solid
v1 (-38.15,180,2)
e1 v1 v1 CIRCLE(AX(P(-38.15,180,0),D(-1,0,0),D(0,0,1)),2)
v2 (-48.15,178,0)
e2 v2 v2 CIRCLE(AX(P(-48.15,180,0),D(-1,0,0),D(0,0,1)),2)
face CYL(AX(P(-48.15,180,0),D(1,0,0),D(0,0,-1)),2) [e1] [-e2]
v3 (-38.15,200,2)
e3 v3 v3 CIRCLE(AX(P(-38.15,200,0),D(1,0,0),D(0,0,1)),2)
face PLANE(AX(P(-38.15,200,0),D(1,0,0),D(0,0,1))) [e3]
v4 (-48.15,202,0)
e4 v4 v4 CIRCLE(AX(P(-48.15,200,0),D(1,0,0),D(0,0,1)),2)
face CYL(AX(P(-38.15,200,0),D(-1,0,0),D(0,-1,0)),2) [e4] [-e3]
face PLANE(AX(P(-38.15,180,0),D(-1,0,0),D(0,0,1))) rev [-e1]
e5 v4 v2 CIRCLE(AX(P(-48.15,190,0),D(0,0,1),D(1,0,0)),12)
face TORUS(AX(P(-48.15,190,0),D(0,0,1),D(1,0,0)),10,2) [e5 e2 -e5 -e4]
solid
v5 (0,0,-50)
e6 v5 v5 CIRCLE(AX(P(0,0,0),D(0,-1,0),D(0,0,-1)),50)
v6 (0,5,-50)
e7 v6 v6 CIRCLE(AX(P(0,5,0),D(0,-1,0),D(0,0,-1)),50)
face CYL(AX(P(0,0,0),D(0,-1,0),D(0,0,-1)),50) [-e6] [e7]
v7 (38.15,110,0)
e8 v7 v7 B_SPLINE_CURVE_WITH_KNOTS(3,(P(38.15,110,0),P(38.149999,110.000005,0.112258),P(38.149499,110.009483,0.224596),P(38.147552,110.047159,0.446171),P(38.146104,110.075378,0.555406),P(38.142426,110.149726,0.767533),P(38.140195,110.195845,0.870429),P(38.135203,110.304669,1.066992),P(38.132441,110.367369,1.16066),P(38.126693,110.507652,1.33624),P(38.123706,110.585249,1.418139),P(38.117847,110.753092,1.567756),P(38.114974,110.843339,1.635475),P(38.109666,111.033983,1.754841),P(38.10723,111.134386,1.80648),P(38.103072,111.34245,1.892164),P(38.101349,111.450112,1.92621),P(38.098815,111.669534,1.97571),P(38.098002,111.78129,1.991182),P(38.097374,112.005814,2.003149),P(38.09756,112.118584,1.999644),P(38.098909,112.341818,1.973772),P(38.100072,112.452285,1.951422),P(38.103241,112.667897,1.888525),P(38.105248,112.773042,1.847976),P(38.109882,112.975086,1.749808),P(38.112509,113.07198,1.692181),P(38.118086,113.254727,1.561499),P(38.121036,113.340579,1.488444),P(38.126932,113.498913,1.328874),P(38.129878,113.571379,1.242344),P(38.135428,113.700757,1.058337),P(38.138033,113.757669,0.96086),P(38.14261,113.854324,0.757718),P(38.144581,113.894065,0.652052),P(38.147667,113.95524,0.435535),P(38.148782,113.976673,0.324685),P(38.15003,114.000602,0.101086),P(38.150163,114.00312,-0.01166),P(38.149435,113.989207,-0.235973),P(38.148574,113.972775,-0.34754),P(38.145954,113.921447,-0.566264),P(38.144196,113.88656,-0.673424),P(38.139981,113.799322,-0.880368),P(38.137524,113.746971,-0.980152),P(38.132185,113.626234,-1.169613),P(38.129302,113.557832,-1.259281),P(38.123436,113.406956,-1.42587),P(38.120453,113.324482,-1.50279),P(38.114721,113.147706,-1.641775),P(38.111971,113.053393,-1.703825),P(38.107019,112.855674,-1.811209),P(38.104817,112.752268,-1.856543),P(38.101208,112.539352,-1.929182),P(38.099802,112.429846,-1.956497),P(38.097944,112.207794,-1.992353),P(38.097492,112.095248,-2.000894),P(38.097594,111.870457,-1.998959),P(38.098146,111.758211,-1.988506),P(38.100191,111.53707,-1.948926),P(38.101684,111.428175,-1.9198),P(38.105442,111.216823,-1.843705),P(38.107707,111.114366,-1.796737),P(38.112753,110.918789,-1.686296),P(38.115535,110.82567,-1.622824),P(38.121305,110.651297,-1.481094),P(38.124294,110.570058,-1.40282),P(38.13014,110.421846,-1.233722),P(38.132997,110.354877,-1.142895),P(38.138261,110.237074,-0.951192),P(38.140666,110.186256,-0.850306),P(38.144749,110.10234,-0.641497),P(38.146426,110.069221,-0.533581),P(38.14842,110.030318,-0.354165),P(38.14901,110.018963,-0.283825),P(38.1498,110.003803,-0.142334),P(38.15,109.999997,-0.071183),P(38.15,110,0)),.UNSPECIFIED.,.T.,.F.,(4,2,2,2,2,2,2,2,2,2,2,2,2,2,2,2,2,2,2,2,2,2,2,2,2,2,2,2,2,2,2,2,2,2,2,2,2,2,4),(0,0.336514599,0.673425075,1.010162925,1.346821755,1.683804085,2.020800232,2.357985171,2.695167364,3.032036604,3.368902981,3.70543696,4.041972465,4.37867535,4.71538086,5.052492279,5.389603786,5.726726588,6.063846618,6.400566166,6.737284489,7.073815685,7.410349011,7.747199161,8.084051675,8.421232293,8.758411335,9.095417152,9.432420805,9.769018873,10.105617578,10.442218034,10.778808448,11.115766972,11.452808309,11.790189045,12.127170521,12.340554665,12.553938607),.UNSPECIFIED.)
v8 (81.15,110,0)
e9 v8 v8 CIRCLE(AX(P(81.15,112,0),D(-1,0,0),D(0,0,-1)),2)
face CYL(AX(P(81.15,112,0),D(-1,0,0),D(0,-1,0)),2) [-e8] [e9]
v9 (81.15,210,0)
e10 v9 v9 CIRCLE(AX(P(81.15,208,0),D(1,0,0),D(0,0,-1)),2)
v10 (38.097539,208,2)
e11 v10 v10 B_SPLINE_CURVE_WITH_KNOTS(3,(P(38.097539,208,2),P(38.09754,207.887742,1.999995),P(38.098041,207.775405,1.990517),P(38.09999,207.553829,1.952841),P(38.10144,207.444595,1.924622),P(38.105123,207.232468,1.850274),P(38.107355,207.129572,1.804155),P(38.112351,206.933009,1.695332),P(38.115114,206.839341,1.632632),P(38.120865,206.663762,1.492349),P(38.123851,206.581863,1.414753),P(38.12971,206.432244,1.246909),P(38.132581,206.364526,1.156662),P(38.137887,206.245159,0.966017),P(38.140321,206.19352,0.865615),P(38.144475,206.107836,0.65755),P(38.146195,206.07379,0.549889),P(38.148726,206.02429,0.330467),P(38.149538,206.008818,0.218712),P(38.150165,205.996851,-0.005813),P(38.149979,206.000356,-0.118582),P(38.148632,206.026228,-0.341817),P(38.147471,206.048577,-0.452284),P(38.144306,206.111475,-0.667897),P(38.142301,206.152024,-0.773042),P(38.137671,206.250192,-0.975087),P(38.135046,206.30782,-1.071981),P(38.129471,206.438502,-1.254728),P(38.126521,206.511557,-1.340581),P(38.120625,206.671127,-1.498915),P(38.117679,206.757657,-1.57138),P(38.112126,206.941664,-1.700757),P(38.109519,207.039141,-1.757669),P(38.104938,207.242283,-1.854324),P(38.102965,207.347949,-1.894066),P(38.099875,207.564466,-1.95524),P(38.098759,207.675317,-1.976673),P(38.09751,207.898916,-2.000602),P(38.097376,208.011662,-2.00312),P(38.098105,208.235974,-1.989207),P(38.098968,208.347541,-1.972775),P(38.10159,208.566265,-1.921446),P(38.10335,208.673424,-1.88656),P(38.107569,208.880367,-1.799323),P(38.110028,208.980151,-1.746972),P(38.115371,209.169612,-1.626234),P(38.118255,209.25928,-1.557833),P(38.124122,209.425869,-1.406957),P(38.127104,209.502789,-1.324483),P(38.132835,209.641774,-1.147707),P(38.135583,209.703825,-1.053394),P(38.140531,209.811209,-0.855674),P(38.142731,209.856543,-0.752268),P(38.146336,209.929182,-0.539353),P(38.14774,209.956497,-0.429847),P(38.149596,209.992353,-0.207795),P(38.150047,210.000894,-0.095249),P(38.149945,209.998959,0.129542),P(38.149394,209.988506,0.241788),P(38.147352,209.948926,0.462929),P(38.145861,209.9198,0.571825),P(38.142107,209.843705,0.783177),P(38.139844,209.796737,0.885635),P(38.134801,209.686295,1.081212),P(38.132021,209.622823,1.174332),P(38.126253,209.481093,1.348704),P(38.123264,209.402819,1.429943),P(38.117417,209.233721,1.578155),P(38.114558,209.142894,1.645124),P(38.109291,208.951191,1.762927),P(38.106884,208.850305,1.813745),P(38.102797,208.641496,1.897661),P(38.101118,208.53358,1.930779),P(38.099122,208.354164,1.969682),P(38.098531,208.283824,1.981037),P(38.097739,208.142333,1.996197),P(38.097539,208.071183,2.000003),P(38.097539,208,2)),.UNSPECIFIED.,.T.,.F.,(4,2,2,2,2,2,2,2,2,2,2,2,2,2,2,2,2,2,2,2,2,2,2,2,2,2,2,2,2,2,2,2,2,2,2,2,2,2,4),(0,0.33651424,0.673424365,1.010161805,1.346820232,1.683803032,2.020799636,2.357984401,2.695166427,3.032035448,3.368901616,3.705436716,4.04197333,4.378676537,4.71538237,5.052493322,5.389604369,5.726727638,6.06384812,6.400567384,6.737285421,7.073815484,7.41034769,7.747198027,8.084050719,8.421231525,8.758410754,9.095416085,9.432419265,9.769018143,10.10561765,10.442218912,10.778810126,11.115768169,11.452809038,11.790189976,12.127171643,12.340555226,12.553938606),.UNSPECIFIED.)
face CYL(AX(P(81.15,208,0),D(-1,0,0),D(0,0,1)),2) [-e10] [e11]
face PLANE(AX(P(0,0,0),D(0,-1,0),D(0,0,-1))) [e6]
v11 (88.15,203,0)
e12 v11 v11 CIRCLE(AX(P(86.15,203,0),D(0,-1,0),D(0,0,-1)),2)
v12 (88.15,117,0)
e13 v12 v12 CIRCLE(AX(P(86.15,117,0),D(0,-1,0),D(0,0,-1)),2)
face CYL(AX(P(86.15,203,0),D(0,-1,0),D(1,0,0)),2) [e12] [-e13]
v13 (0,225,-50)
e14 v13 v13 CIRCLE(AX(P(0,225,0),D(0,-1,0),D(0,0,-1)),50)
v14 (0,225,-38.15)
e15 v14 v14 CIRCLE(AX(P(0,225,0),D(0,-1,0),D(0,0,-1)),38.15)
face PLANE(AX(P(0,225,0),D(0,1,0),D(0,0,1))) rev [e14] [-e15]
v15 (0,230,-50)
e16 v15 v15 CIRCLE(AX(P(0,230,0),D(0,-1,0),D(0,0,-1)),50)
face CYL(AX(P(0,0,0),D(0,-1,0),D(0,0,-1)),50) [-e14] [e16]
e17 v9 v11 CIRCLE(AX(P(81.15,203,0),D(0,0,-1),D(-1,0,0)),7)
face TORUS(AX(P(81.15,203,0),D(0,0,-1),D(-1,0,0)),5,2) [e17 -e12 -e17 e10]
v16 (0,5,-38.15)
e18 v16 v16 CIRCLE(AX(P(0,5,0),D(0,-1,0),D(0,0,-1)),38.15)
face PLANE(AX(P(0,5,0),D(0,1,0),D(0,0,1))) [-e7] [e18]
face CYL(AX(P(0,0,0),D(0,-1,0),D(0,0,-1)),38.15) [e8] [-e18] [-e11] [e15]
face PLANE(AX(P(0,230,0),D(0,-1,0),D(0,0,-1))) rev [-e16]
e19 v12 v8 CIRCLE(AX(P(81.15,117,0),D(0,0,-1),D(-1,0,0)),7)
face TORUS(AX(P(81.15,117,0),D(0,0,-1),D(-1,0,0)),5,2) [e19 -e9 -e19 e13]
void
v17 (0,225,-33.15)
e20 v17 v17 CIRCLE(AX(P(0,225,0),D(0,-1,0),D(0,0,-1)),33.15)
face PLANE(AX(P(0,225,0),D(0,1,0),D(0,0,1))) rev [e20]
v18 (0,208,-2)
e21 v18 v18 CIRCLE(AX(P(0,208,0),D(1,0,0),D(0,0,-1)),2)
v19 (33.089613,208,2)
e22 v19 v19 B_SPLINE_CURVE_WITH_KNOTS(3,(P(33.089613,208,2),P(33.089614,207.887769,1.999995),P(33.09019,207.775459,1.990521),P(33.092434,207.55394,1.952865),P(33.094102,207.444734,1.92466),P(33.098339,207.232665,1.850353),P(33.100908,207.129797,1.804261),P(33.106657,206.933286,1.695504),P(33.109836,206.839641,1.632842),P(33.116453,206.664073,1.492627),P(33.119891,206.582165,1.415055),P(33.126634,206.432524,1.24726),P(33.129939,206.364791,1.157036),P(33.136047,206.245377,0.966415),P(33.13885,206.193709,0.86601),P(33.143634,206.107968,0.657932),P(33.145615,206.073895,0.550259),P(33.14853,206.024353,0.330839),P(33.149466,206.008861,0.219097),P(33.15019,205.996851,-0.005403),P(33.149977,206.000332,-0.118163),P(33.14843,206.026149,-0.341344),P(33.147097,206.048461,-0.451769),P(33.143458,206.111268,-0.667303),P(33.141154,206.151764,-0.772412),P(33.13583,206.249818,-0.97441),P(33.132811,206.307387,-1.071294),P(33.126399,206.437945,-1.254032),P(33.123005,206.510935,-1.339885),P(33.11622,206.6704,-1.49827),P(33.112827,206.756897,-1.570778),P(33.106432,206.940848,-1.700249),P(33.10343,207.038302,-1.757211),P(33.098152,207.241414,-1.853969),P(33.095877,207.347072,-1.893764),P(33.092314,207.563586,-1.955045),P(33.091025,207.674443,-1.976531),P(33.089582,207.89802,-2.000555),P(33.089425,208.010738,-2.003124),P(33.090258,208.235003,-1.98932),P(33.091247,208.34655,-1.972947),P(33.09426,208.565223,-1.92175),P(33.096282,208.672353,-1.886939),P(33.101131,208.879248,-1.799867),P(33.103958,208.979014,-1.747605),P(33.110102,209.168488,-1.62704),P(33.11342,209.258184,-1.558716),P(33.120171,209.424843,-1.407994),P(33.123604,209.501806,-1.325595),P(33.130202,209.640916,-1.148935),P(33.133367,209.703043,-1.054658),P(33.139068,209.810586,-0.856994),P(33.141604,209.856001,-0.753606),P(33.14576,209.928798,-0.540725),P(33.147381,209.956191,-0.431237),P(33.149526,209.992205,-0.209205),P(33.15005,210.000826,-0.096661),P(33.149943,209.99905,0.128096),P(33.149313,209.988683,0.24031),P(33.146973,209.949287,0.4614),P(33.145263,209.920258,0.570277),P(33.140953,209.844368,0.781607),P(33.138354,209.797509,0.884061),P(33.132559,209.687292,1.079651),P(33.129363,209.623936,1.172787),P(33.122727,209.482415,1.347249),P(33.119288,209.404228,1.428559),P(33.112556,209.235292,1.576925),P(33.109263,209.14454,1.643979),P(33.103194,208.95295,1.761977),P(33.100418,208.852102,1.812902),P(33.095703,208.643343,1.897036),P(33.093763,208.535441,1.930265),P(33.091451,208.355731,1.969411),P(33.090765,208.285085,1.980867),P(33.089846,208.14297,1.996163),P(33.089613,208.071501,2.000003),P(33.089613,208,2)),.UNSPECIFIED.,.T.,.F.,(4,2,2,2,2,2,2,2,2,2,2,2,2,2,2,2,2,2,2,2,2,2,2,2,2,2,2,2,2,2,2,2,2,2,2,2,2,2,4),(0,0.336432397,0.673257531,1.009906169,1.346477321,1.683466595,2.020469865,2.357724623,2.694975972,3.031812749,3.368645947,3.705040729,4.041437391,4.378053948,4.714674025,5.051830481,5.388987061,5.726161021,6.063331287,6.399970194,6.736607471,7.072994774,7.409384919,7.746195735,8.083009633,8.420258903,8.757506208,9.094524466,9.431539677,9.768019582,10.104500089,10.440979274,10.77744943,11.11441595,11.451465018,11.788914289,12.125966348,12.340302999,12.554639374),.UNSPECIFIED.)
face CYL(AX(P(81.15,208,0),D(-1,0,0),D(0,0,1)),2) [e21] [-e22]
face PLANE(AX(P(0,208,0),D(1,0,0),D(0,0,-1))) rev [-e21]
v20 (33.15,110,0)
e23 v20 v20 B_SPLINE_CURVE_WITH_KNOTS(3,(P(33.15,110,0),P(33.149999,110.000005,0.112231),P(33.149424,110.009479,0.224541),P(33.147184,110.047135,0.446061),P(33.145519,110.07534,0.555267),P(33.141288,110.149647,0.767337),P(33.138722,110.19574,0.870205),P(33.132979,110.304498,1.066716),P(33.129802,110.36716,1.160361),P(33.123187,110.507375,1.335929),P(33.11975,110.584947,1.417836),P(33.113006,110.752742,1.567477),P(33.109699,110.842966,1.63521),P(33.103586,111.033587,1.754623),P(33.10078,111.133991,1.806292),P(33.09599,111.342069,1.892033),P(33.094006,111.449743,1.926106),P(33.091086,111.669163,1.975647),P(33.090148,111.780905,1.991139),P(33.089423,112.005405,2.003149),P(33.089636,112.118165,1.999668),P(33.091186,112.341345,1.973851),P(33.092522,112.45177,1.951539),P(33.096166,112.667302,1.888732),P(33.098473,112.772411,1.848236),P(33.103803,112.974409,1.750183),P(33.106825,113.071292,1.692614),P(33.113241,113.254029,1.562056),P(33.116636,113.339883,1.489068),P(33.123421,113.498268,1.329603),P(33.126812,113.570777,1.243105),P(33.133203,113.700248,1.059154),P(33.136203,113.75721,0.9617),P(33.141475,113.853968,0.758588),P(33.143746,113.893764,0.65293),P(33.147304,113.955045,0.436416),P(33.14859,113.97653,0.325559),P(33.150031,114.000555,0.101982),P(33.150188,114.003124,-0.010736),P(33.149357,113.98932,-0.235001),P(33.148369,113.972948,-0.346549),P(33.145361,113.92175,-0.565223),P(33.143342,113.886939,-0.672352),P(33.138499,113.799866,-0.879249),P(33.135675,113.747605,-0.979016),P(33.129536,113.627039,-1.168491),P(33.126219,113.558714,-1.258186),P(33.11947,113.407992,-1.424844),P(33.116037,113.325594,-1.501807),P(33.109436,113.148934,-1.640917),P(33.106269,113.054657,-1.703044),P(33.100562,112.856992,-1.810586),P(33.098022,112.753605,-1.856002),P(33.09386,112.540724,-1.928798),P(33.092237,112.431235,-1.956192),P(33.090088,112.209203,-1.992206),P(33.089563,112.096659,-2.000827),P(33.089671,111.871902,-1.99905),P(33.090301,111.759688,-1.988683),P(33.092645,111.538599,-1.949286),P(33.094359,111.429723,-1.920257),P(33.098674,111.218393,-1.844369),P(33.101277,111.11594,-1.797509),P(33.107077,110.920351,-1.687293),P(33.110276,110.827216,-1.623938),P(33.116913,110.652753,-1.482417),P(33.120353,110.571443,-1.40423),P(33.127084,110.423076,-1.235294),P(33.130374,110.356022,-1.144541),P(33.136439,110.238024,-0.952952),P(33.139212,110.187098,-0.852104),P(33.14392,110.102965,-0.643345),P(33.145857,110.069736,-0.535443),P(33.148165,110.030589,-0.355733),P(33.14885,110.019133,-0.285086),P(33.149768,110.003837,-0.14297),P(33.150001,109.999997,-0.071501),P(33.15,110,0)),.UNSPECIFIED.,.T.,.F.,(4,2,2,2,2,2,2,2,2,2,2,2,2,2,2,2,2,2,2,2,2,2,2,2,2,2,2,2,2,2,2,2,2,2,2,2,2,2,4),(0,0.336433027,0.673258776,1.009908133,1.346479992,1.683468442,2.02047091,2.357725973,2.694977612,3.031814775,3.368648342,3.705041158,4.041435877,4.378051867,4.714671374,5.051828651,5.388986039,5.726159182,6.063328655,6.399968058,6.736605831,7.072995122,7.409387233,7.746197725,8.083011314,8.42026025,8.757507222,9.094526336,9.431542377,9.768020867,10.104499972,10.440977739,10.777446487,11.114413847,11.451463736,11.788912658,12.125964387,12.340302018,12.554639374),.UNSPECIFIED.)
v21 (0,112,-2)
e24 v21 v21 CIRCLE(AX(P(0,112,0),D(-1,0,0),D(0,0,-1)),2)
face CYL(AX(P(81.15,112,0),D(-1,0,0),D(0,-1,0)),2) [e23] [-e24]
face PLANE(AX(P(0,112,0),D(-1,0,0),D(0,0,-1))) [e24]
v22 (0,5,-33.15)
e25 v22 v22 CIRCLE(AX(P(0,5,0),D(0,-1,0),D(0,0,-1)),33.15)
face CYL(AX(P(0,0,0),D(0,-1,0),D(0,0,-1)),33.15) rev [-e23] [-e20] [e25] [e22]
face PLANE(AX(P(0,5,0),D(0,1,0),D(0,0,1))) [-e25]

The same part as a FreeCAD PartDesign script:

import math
import FreeCAD as App
import Part
import Sketcher

V = App.Vector


def add_polygon(sketch, points):
    """Adds a closed chain of lines whose ends are joined by coincident constraints."""
    first, n = sketch.GeometryCount, len(points)
    for a, b in zip(points, points[1:] + points[:1]):
        sketch.addGeometry(Part.LineSegment(App.Vector(*a, 0), App.Vector(*b, 0)), False)
    for i in range(n):
        sketch.addConstraint(Sketcher.Constraint("Coincident", first + i, 2, first + (i + 1) % n, 1))

doc = App.newDocument("Part")
params = doc.addObject("Spreadsheet::Sheet", "Params")
for row, (alias, value) in enumerate([
    ("sketch1_width", "50 mm"),
    ("sketch1_height", "5 mm"),
    ("sketch1_height2", "220 mm"),
    ("sketch1_width2", "11.85 mm"),
    ("revolution_angle", "360 deg"),
    ("sketch2_diameter", "4 mm"),
    ("sketch3_radius", "5 mm"),
    ("sketch3_height", "86 mm"),
    ("sketch3_width", "81.15 mm"),
    ("sketch4_diameter", "4 mm"),
    ("sketch5_radius", "10 mm"),
    ("sketch5_width", "10 mm"),
], start=1):
    params.set(f"A{row}", alias)
    params.set(f"B{row}", "=" + value)
    params.setAlias(f"B{row}", alias)

body = doc.addObject("PartDesign::Body", "Body")

sketch1 = body.newObject("Sketcher::SketchObject", "Sketch")
sketch1.AttachmentSupport = (doc.getObject("XY_Plane"), [""])
sketch1.MapMode = "FlatFace"
add_polygon(sketch1, [(0, 5), (0, 0), (50, 0), (50, 5), (38.15, 5), (38.15, 225), (50, 225), (50, 230), (0, 230), (0, 225), (33.15, 225), (33.15, 5)])
sketch1.addConstraint(Sketcher.Constraint("Vertical", 0))
sketch1.addConstraint(Sketcher.Constraint("Horizontal", 1))
sketch1.addConstraint(Sketcher.Constraint("Vertical", 2))
sketch1.addConstraint(Sketcher.Constraint("Horizontal", 3))
sketch1.addConstraint(Sketcher.Constraint("Vertical", 4))
sketch1.addConstraint(Sketcher.Constraint("Horizontal", 5))
sketch1.addConstraint(Sketcher.Constraint("Vertical", 6))
sketch1.addConstraint(Sketcher.Constraint("Horizontal", 7))
sketch1.addConstraint(Sketcher.Constraint("Vertical", 8))
sketch1.addConstraint(Sketcher.Constraint("Horizontal", 9))
sketch1.addConstraint(Sketcher.Constraint("Vertical", 10))
sketch1.addConstraint(Sketcher.Constraint("Horizontal", 11))
sketch1.addConstraint(Sketcher.Constraint("Coincident", 0, 2, -1, 1))
sketch1.addConstraint(Sketcher.Constraint("PointOnObject", 7, 2, -2))
sketch1.addConstraint(Sketcher.Constraint("Horizontal", 5, 2, 8, 2))
sketch1.addConstraint(Sketcher.Constraint("Horizontal", 3, 2, 10, 2))
sketch1.addConstraint(Sketcher.Constraint("Vertical", 2, 2, 5, 2))
sketch1.addConstraint(Sketcher.Constraint("Equal", 2, 6))
sketch1.addConstraint(Sketcher.Constraint("DistanceX", 1, 1, 1, 2, 50.0))
sketch1.addConstraint(Sketcher.Constraint("DistanceY", 0, 2, 0, 1, 5.0))
sketch1.addConstraint(Sketcher.Constraint("DistanceY", 4, 1, 4, 2, 220.0))
sketch1.addConstraint(Sketcher.Constraint("DistanceX", 9, 2, 4, 2, 5.0))
sketch1.addConstraint(Sketcher.Constraint("DistanceX", 3, 2, 3, 1, 11.85))
sketch1.setExpression("Constraints[30]", "Params.sketch1_width")
sketch1.setExpression("Constraints[31]", "Params.sketch1_height")
sketch1.setExpression("Constraints[32]", "Params.sketch1_height2")
sketch1.setExpression("Constraints[34]", "Params.sketch1_width2")
revolution = body.newObject("PartDesign::Revolution", "Revolution")
revolution.Profile = sketch1
revolution.ReferenceAxis = (sketch1, ["V_Axis"])
revolution.setExpression("Angle", "Params.revolution_angle")

sketch2 = body.newObject("Sketcher::SketchObject", "Sketch001")
sketch2.AttachmentSupport = (doc.getObject("YZ_Plane"), [""])
sketch2.MapMode = "FlatFace"
sketch2.addGeometry(Part.Circle(V(208, 0, 0), V(0, 0, 1), 2), False)
sketch2.addConstraint(Sketcher.Constraint("PointOnObject", 0, 3, -1))
sketch2.addConstraint(Sketcher.Constraint("Diameter", 0, 4.0))
sketch2.addConstraint(Sketcher.Constraint("DistanceX", -1, 1, 0, 3, 208.0))
sketch2.setExpression("Constraints[1]", "Params.sketch2_diameter")

sketch3 = body.newObject("Sketcher::SketchObject", "Sketch002")
sketch3.AttachmentSupport = (doc.getObject("XY_Plane"), [""])
sketch3.MapMode = "FlatFace"
sketch3.addGeometry(Part.LineSegment(V(0, 208, 0), V(81.15, 208, 0)), False)
sketch3.addGeometry(Part.ArcOfCircle(Part.Circle(V(81.15, 203, 0), V(0, 0, 1), 5), math.radians(0), math.radians(90)), False)
sketch3.addGeometry(Part.LineSegment(V(86.15, 203, 0), V(86.15, 117, 0)), False)
sketch3.addGeometry(Part.ArcOfCircle(Part.Circle(V(81.15, 117, 0), V(0, 0, 1), 5), math.radians(-90), math.radians(0)), False)
sketch3.addGeometry(Part.LineSegment(V(81.15, 112, 0), V(0, 112, 0)), False)
sketch3.addConstraint(Sketcher.Constraint("Tangent", 0, 2, 1, 2))
sketch3.addConstraint(Sketcher.Constraint("Tangent", 1, 1, 2, 1))
sketch3.addConstraint(Sketcher.Constraint("Tangent", 2, 2, 3, 2))
sketch3.addConstraint(Sketcher.Constraint("Tangent", 3, 1, 4, 1))
sketch3.addConstraint(Sketcher.Constraint("Horizontal", 0))
sketch3.addConstraint(Sketcher.Constraint("Vertical", 2))
sketch3.addConstraint(Sketcher.Constraint("Horizontal", 4))
sketch3.addConstraint(Sketcher.Constraint("Equal", 1, 3))
sketch3.addConstraint(Sketcher.Constraint("PointOnObject", 0, 1, -2))
sketch3.addConstraint(Sketcher.Constraint("PointOnObject", 4, 2, -2))
sketch3.addConstraint(Sketcher.Constraint("Radius", 1, 5.0))
sketch3.addConstraint(Sketcher.Constraint("DistanceY", 2, 2, 2, 1, 86.0))
sketch3.addConstraint(Sketcher.Constraint("DistanceY", -1, 1, 1, 3, 203.0))
sketch3.addConstraint(Sketcher.Constraint("DistanceX", 0, 1, 0, 2, 81.15))
sketch3.setExpression("Constraints[10]", "Params.sketch3_radius")
sketch3.setExpression("Constraints[11]", "Params.sketch3_height")
sketch3.setExpression("Constraints[13]", "Params.sketch3_width")
doc.recompute()

additivepipe = body.newObject("PartDesign::AdditivePipe", "AdditivePipe")
additivepipe.Profile = sketch2
additivepipe.Spine = (sketch3, ["Edge1", "Edge2", "Edge3", "Edge4", "Edge5"])
body2 = doc.addObject("PartDesign::Body", "Body001")

sketch4 = body2.newObject("Sketcher::SketchObject", "Sketch003")
sketch4.AttachmentSupport = (doc.getObject("YZ_Plane001"), [""])
sketch4.MapMode = "FlatFace"
sketch4.AttachmentOffset = App.Placement(V(0, 0, -38.15), App.Rotation())
sketch4.addGeometry(Part.Circle(V(200, 0, 0), V(0, 0, 1), 2), False)
sketch4.addConstraint(Sketcher.Constraint("PointOnObject", 0, 3, -1))
sketch4.addConstraint(Sketcher.Constraint("Diameter", 0, 4.0))
sketch4.addConstraint(Sketcher.Constraint("DistanceX", -1, 1, 0, 3, 200.0))
sketch4.setExpression("Constraints[1]", "Params.sketch4_diameter")

sketch5 = body2.newObject("Sketcher::SketchObject", "Sketch004")
sketch5.AttachmentSupport = (doc.getObject("XY_Plane001"), [""])
sketch5.MapMode = "FlatFace"
sketch5.addGeometry(Part.LineSegment(V(-38.15, 200, 0), V(-48.15, 200, 0)), False)
sketch5.addGeometry(Part.ArcOfCircle(Part.Circle(V(-48.15, 190, 0), V(0, 0, 1), 10), math.radians(90), math.radians(270)), False)
sketch5.addGeometry(Part.LineSegment(V(-48.15, 180, 0), V(-38.15, 180, 0)), False)
sketch5.addConstraint(Sketcher.Constraint("Tangent", 0, 2, 1, 1))
sketch5.addConstraint(Sketcher.Constraint("Tangent", 1, 2, 2, 1))
sketch5.addConstraint(Sketcher.Constraint("Horizontal", 0))
sketch5.addConstraint(Sketcher.Constraint("Horizontal", 2))
sketch5.addConstraint(Sketcher.Constraint("Vertical", 0, 1, 2, 2))
sketch5.addConstraint(Sketcher.Constraint("Radius", 1, 10.0))
sketch5.addConstraint(Sketcher.Constraint("DistanceX", 0, 2, 0, 1, 10.0))
sketch5.addConstraint(Sketcher.Constraint("DistanceY", -1, 1, 1, 3, 190.0))
sketch5.addConstraint(Sketcher.Constraint("DistanceX", 1, 3, -1, 1, 48.15))
sketch5.setExpression("Constraints[5]", "Params.sketch5_radius")
sketch5.setExpression("Constraints[6]", "Params.sketch5_width")
doc.recompute()

additivepipe2 = body2.newObject("PartDesign::AdditivePipe", "AdditivePipe001")
additivepipe2.Profile = sketch4
additivepipe2.Spine = (sketch5, ["Edge1", "Edge2", "Edge3"])

doc.recompute()
